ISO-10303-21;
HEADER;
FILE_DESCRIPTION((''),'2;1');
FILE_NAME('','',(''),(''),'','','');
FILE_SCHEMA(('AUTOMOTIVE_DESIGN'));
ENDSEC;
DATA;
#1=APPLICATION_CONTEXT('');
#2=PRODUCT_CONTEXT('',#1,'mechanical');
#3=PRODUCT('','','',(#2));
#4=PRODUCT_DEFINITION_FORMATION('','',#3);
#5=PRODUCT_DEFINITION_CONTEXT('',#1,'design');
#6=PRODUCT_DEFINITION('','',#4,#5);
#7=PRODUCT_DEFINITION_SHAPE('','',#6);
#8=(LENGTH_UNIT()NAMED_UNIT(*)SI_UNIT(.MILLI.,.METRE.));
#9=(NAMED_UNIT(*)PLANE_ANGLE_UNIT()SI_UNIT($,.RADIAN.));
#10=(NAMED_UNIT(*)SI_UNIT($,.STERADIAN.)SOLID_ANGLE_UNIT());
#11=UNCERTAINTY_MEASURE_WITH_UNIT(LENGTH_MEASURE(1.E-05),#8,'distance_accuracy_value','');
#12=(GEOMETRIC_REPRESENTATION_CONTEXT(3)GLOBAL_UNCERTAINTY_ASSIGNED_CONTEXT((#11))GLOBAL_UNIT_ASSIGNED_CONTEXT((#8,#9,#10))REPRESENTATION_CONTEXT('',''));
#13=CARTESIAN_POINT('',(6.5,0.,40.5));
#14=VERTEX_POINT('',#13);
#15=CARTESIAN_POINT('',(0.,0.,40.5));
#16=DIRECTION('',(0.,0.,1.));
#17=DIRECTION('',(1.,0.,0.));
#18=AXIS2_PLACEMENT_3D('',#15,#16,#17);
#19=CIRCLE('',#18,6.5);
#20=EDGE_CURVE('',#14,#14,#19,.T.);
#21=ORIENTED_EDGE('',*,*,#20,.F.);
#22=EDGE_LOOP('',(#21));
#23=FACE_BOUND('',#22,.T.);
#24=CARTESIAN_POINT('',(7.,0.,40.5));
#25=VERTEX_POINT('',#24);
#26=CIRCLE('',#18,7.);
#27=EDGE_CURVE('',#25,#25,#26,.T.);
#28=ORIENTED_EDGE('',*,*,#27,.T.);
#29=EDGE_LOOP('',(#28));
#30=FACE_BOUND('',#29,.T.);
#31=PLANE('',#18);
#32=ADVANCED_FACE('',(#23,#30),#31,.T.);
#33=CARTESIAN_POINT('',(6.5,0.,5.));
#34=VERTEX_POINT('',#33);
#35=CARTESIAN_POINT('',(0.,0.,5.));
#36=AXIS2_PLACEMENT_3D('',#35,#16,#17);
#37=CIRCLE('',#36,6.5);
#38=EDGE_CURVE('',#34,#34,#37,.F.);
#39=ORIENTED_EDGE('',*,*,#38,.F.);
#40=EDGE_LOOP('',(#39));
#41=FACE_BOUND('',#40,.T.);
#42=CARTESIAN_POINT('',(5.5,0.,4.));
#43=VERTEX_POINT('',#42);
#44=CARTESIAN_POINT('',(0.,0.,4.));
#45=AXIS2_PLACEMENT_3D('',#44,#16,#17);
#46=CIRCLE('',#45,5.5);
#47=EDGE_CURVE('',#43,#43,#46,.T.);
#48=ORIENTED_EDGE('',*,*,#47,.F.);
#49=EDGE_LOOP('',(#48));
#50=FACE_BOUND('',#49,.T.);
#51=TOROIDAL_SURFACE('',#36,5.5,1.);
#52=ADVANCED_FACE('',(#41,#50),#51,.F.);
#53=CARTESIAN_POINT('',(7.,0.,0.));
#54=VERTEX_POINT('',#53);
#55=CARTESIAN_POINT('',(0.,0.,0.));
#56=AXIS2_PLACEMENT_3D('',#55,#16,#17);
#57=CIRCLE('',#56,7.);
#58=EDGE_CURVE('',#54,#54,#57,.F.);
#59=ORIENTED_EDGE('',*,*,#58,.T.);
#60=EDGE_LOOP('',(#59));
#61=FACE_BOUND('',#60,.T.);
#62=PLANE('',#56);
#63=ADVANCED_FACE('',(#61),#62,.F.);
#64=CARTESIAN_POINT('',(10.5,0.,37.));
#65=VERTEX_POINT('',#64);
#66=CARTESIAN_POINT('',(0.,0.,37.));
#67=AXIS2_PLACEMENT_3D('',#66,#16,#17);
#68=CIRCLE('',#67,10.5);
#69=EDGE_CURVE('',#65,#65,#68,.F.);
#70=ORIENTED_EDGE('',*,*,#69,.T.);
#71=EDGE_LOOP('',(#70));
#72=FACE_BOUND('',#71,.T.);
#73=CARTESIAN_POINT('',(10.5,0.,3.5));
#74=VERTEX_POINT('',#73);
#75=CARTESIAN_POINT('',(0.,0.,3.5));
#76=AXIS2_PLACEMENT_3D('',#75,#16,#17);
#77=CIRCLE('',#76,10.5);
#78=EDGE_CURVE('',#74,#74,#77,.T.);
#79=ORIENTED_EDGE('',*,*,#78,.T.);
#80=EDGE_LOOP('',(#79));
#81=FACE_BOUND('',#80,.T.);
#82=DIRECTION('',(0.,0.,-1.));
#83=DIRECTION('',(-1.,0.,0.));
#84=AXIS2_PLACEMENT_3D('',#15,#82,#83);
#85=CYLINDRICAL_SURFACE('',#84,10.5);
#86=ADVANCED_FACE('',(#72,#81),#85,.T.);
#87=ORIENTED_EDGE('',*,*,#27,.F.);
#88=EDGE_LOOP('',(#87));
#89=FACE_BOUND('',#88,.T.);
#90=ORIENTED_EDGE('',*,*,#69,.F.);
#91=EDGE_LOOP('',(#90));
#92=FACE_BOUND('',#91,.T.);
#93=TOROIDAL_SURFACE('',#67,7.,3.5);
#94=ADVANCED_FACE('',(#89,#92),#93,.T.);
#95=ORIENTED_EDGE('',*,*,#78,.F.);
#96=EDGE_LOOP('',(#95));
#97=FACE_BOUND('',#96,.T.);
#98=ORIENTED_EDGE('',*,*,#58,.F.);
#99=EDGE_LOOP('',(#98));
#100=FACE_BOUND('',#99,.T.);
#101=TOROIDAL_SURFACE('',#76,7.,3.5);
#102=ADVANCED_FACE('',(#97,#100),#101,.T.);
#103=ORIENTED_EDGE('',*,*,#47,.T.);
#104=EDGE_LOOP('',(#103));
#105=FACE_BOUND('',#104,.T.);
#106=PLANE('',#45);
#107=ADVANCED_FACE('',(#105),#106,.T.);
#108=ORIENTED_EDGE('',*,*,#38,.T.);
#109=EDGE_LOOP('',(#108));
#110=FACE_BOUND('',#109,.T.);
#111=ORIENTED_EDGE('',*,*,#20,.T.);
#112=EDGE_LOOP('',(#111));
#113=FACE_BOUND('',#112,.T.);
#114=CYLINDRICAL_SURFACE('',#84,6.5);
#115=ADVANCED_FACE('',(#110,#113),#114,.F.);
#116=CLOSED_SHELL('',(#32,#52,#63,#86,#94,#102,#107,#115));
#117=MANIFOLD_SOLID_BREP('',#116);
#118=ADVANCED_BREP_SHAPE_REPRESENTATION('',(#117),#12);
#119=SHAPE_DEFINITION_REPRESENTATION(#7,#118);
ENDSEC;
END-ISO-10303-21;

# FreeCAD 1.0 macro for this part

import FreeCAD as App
import Part
import Sketcher
Q = App.Units.Quantity


def edges_at(feature, points):
    """Names of the edges that pass closest to the given points."""
    edges = feature.Shape.Edges
    near = lambda p: min(range(len(edges)), key=lambda i: edges[i].distToShape(Part.Vertex(*p))[0])
    return sorted({f"Edge{near(p) + 1}" for p in points})


def faces_at(feature, points):
    """Names of the faces that lie closest to the given points."""
    faces = feature.Shape.Faces
    near = lambda p: min(range(len(faces)), key=lambda i: faces[i].distToShape(Part.Vertex(*p))[0])
    return sorted({f"Face{near(p) + 1}" for p in points})

doc = App.newDocument("Part")
body = doc.addObject("PartDesign::Body", "Body")

# Sketch on XY plane
sketch1 = body.newObject("Sketcher::SketchObject", "Sketch")
sketch1.AttachmentSupport = (doc.getObject("XY_Plane"), [""])
sketch1.MapMode = "FlatFace"
sketch1.addGeometry(Part.Circle(App.Vector(0, 0, 0), App.Vector(0, 0, 1), 10.5), False)
sketch1.addConstraint(Sketcher.Constraint("Coincident", 0, 3, -1, 1))
sketch1.addConstraint(Sketcher.Constraint("Diameter", 0, Q("21 mm")))
pad1 = body.newObject("PartDesign::Pad", "Pad")
pad1.Profile = sketch1
pad1.Length = 40.5
doc.recompute()

thickness = body.newObject("PartDesign::Thickness", "Thickness")
thickness.Base = (pad1, faces_at(pad1, [(0, 0, 40.5)]))
thickness.Value = 4
thickness.Reversed = True
thickness.Join = "Intersection"
doc.recompute()

fillet = body.newObject("PartDesign::Fillet", "Fillet")
fillet.Base = (thickness, edges_at(thickness, [(-10.5, 0, 40.5)]))
fillet.Radius = 3.5
doc.recompute()

fillet2 = body.newObject("PartDesign::Fillet", "Fillet001")
fillet2.Base = (fillet, edges_at(fillet, [(-10.5, 0, 0)]))
fillet2.Radius = 3.5
doc.recompute()

fillet3 = body.newObject("PartDesign::Fillet", "Fillet002")
fillet3.Base = (fillet2, edges_at(fillet2, [(-6.5, 0, 4)]))
fillet3.Radius = 1

doc.recompute()
